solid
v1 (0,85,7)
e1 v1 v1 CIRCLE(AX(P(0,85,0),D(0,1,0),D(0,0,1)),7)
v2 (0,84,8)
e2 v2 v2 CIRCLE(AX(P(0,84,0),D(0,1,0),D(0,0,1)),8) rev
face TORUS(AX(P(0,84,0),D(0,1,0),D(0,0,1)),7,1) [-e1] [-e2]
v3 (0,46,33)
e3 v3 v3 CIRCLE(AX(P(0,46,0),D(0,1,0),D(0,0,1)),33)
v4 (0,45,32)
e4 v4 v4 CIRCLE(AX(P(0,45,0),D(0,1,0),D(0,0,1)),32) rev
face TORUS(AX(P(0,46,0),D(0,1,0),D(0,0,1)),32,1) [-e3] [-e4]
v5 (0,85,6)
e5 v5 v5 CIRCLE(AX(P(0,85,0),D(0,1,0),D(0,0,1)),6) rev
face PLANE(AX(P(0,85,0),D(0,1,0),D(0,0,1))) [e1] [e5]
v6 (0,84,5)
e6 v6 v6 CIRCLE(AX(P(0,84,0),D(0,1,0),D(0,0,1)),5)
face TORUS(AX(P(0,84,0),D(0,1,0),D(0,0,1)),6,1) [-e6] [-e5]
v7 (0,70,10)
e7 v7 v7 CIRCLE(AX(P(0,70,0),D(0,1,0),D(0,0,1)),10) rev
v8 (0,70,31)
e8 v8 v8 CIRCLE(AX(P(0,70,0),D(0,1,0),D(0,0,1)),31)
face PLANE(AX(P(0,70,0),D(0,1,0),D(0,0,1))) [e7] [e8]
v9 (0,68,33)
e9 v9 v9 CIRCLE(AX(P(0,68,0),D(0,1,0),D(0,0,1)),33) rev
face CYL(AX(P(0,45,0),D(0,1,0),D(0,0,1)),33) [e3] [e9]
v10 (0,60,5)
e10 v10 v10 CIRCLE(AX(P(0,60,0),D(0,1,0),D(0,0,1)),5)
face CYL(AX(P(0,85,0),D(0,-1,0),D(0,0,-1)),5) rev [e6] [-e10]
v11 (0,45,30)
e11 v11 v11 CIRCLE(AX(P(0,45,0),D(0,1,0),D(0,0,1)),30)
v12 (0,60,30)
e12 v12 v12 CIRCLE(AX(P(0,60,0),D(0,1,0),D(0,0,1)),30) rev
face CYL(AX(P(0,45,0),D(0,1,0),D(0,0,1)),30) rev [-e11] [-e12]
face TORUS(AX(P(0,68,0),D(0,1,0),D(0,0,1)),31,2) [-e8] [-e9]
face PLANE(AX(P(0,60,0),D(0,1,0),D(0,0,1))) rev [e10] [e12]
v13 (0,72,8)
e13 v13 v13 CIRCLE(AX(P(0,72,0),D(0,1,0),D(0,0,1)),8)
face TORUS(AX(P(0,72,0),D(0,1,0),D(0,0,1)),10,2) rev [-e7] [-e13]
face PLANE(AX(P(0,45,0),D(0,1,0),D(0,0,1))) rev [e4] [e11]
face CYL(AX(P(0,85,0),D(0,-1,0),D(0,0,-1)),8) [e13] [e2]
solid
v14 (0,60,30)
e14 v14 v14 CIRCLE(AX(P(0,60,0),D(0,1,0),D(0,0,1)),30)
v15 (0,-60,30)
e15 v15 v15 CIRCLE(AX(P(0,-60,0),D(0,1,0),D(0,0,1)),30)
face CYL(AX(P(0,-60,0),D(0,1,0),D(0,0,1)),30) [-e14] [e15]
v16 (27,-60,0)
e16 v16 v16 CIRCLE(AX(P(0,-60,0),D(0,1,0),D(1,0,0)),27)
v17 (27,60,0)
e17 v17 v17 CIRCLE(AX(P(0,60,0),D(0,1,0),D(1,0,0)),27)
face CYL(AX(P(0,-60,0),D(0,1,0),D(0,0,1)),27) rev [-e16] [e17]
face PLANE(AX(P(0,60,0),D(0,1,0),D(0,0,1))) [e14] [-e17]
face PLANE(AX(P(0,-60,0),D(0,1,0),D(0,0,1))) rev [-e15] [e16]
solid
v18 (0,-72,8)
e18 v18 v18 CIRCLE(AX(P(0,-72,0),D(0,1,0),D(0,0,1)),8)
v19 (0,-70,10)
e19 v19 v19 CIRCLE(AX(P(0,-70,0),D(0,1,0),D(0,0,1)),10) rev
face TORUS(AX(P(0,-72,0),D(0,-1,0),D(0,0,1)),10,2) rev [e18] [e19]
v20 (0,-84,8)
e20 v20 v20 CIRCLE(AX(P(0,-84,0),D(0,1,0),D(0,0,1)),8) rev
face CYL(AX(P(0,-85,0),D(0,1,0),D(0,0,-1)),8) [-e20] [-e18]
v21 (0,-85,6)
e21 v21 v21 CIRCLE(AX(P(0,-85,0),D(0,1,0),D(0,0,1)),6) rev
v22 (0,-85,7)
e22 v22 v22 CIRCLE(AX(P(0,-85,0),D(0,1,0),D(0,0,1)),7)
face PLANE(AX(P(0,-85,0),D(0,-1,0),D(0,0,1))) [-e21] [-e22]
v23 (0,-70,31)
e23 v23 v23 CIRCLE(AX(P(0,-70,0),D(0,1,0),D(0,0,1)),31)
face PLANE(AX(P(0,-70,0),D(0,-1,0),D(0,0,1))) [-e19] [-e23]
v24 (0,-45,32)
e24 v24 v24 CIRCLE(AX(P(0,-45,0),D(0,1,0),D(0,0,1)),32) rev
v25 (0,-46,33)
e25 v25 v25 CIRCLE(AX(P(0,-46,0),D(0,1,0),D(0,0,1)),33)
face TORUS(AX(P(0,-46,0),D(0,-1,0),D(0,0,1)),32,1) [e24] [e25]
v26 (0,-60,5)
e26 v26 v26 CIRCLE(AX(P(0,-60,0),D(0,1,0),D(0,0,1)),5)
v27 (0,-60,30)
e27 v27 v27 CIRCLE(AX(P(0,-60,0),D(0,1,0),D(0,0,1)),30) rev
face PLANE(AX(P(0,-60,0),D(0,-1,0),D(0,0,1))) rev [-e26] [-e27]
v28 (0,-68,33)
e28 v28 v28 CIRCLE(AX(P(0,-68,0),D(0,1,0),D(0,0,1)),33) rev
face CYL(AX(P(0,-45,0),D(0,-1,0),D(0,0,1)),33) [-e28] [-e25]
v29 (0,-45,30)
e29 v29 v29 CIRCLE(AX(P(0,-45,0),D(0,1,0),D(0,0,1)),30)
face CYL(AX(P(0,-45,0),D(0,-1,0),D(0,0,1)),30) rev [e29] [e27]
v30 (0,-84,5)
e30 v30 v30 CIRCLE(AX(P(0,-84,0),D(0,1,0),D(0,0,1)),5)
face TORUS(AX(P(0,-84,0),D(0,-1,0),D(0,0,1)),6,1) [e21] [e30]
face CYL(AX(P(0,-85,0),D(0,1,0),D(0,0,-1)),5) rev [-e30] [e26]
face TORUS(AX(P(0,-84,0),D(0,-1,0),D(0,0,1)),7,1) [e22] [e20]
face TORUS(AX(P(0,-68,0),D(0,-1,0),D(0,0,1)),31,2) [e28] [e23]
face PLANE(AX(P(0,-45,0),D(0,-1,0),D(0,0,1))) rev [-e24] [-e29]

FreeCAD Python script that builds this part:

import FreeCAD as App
import Part
import Sketcher
Q = App.Units.Quantity


def edges_at(feature, points):
    """Names of the edges that pass closest to the given points."""
    edges = feature.Shape.Edges
    near = lambda p: min(range(len(edges)), key=lambda i: edges[i].distToShape(Part.Vertex(*p))[0])
    return sorted({f"Edge{near(p) + 1}" for p in points})

doc = App.newDocument("Part")
body = doc.addObject("PartDesign::Body", "Body")

sketch1 = body.newObject("Sketcher::SketchObject", "Sketch")
sketch1.AttachmentSupport = (doc.getObject("XZ_Plane"), [""])
sketch1.MapMode = "FlatFace"
sketch1.addGeometry(Part.Circle(App.Vector(0, 0, 0), App.Vector(0, 0, 1), 30), False)
sketch1.addGeometry(Part.Circle(App.Vector(0, 0, 0), App.Vector(0, 0, 1), 27), False)
sketch1.addConstraint(Sketcher.Constraint("Coincident", 0, 3, -1, 1))
sketch1.addConstraint(Sketcher.Constraint("Coincident", 1, 3, -1, 1))
sketch1.addConstraint(Sketcher.Constraint("Diameter", 0, Q("60 mm")))
sketch1.addConstraint(Sketcher.Constraint("Diameter", 1, Q("54 mm")))
pad1 = body.newObject("PartDesign::Pad", "Pad")
pad1.Profile = sketch1
pad1.Type = "TwoLengths"
pad1.Length = 60
pad1.Length2 = 60
pad1.Reversed = True
body2 = doc.addObject("PartDesign::Body", "Body001")

sketch2 = body2.newObject("Sketcher::SketchObject", "Sketch001")
sketch2.AttachmentSupport = (doc.getObject("XZ_Plane001"), [""])
sketch2.MapMode = "FlatFace"
sketch2.AttachmentOffset = App.Placement(App.Vector(0, 0, -60), App.Rotation())
sketch2.addGeometry(Part.Circle(App.Vector(0, 0, 0), App.Vector(0, 0, 1), 33), False)
sketch2.addGeometry(Part.Circle(App.Vector(0, 0, 0), App.Vector(0, 0, 1), 30), False)
sketch2.addConstraint(Sketcher.Constraint("Coincident", 0, 3, -1, 1))
sketch2.addConstraint(Sketcher.Constraint("Coincident", 1, 3, -1, 1))
sketch2.addConstraint(Sketcher.Constraint("Diameter", 0, Q("66 mm")))
sketch2.addConstraint(Sketcher.Constraint("Diameter", 1, Q("60 mm")))
pad2 = body2.newObject("PartDesign::Pad", "Pad001")
pad2.Profile = sketch2
pad2.Length = 15

sketch3 = body2.newObject("Sketcher::SketchObject", "Sketch002")
sketch3.AttachmentSupport = (doc.getObject("XZ_Plane001"), [""])
sketch3.MapMode = "FlatFace"
sketch3.AttachmentOffset = App.Placement(App.Vector(0, 0, -60), App.Rotation())
sketch3.addGeometry(Part.Circle(App.Vector(0, 0, 0), App.Vector(0, 0, 1), 33), False)
sketch3.addConstraint(Sketcher.Constraint("Coincident", 0, 3, -1, 1))
sketch3.addConstraint(Sketcher.Constraint("Diameter", 0, Q("66 mm")))
pad3 = body2.newObject("PartDesign::Pad", "Pad002")
pad3.Profile = sketch3
pad3.Length = 10
pad3.Reversed = True

sketch4 = body2.newObject("Sketcher::SketchObject", "Sketch003")
sketch4.AttachmentSupport = (doc.getObject("XZ_Plane001"), [""])
sketch4.MapMode = "FlatFace"
sketch4.AttachmentOffset = App.Placement(App.Vector(0, 0, -70), App.Rotation())
sketch4.addGeometry(Part.Circle(App.Vector(0, 0, 0), App.Vector(0, 0, 1), 8), False)
sketch4.addGeometry(Part.Circle(App.Vector(0, 0, 0), App.Vector(0, 0, 1), 5), False)
sketch4.addConstraint(Sketcher.Constraint("Coincident", 0, 3, -1, 1))
sketch4.addConstraint(Sketcher.Constraint("Coincident", 1, 3, -1, 1))
sketch4.addConstraint(Sketcher.Constraint("Diameter", 0, Q("16 mm")))
sketch4.addConstraint(Sketcher.Constraint("Diameter", 1, Q("10 mm")))
pad4 = body2.newObject("PartDesign::Pad", "Pad003")
pad4.Profile = sketch4
pad4.Length = 15
pad4.Reversed = True

sketch5 = body2.newObject("Sketcher::SketchObject", "Sketch004")
sketch5.AttachmentSupport = (doc.getObject("XZ_Plane001"), [""])
sketch5.MapMode = "FlatFace"
sketch5.AttachmentOffset = App.Placement(App.Vector(0, 0, -70), App.Rotation())
sketch5.addGeometry(Part.Circle(App.Vector(0, 0, 0), App.Vector(0, 0, 1), 5), False)
sketch5.addConstraint(Sketcher.Constraint("Coincident", 0, 3, -1, 1))
sketch5.addConstraint(Sketcher.Constraint("Diameter", 0, Q("10 mm")))
pocket1 = body2.newObject("PartDesign::Pocket", "Pocket")
pocket1.Profile = sketch5
pocket1.Length = 20
pocket1.Reversed = True
doc.recompute()

fillet = body2.newObject("PartDesign::Fillet", "Fillet")
fillet.Base = (pocket1, edges_at(pocket1, [(0, 70, -33), (0, 70, -8)]))
fillet.Radius = 2
doc.recompute()

fillet2 = body2.newObject("PartDesign::Fillet", "Fillet001")
fillet2.Base = (fillet, edges_at(fillet, [(0, 85, -8), (0, 85, -5), (0, 45, -33)]))
fillet2.Radius = 1
body3 = doc.addObject("PartDesign::Body", "Body002")
doc.recompute()

mirroring = doc.addObject("Part::Mirroring", "Mirroring")
mirroring.Source = body2
mirroring.Base = App.Vector(0, 0, 0)
mirroring.Normal = App.Vector(0, 1, 0)
body3.BaseFeature = mirroring
doc.recompute()
mirroring.Visibility = False

doc.recompute()
